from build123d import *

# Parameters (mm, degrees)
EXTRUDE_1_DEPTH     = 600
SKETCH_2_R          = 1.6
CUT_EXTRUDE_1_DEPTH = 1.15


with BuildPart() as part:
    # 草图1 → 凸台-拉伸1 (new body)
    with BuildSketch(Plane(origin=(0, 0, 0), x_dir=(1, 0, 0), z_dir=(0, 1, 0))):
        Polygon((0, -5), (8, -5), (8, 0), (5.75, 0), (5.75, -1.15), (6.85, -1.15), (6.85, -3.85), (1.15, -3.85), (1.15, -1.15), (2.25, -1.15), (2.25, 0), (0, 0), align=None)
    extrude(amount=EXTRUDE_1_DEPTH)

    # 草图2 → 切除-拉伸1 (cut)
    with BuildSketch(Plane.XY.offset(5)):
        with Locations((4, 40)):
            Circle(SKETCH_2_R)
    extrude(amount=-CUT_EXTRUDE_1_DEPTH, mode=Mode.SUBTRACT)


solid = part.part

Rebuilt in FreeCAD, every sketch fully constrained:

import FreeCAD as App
import Part
import Sketcher
Q = App.Units.Quantity

doc = App.newDocument("Part")
body = doc.addObject("PartDesign::Body", "Body")

sketch1 = body.newObject("Sketcher::SketchObject", "Sketch")
sketch1.AttachmentSupport = (doc.getObject("XZ_Plane"), [""])
sketch1.MapMode = "FlatFace"
sketch1.addGeometry(Part.LineSegment(App.Vector(0, 5, 0), App.Vector(8, 5, 0)), False)
sketch1.addGeometry(Part.LineSegment(App.Vector(8, 5, 0), App.Vector(8, 0, 0)), False)
sketch1.addGeometry(Part.LineSegment(App.Vector(8, 0, 0), App.Vector(5.8, 0, 0)), False)
sketch1.addGeometry(Part.LineSegment(App.Vector(5.8, 0, 0), App.Vector(5.8, 1.1, 0)), False)
sketch1.addGeometry(Part.LineSegment(App.Vector(5.8, 1.1, 0), App.Vector(6.8, 1.1, 0)), False)
sketch1.addGeometry(Part.LineSegment(App.Vector(6.8, 1.1, 0), App.Vector(6.8, 3.9, 0)), False)
sketch1.addGeometry(Part.LineSegment(App.Vector(6.8, 3.9, 0), App.Vector(1.1, 3.9, 0)), False)
sketch1.addGeometry(Part.LineSegment(App.Vector(1.1, 3.9, 0), App.Vector(1.1, 1.1, 0)), False)
sketch1.addGeometry(Part.LineSegment(App.Vector(1.1, 1.1, 0), App.Vector(2.2, 1.1, 0)), False)
sketch1.addGeometry(Part.LineSegment(App.Vector(2.2, 1.1, 0), App.Vector(2.2, 0, 0)), False)
sketch1.addGeometry(Part.LineSegment(App.Vector(2.2, 0, 0), App.Vector(0, 0, 0)), False)
sketch1.addGeometry(Part.LineSegment(App.Vector(0, 0, 0), App.Vector(0, 5, 0)), False)
sketch1.addConstraint(Sketcher.Constraint("Coincident", 0, 2, 1, 1))
sketch1.addConstraint(Sketcher.Constraint("Coincident", 1, 2, 2, 1))
sketch1.addConstraint(Sketcher.Constraint("Coincident", 2, 2, 3, 1))
sketch1.addConstraint(Sketcher.Constraint("Coincident", 3, 2, 4, 1))
sketch1.addConstraint(Sketcher.Constraint("Coincident", 4, 2, 5, 1))
sketch1.addConstraint(Sketcher.Constraint("Coincident", 5, 2, 6, 1))
sketch1.addConstraint(Sketcher.Constraint("Coincident", 6, 2, 7, 1))
sketch1.addConstraint(Sketcher.Constraint("Coincident", 7, 2, 8, 1))
sketch1.addConstraint(Sketcher.Constraint("Coincident", 8, 2, 9, 1))
sketch1.addConstraint(Sketcher.Constraint("Coincident", 9, 2, 10, 1))
sketch1.addConstraint(Sketcher.Constraint("Coincident", 10, 2, 11, 1))
sketch1.addConstraint(Sketcher.Constraint("Coincident", 11, 2, 0, 1))
sketch1.addConstraint(Sketcher.Constraint("Horizontal", 0))
sketch1.addConstraint(Sketcher.Constraint("Vertical", 1))
sketch1.addConstraint(Sketcher.Constraint("Horizontal", 2))
sketch1.addConstraint(Sketcher.Constraint("Vertical", 3))
sketch1.addConstraint(Sketcher.Constraint("Horizontal", 4))
sketch1.addConstraint(Sketcher.Constraint("Vertical", 5))
sketch1.addConstraint(Sketcher.Constraint("Horizontal", 6))
sketch1.addConstraint(Sketcher.Constraint("Vertical", 7))
sketch1.addConstraint(Sketcher.Constraint("Horizontal", 8))
sketch1.addConstraint(Sketcher.Constraint("Vertical", 9))
sketch1.addConstraint(Sketcher.Constraint("Horizontal", 10))
sketch1.addConstraint(Sketcher.Constraint("Vertical", 11))
sketch1.addConstraint(Sketcher.Constraint("Coincident", 10, 2, -1, 1))
sketch1.addConstraint(Sketcher.Constraint("PointOnObject", 1, 2, -1))
sketch1.addConstraint(Sketcher.Constraint("Horizontal", 4, 2, 7, 2))
sketch1.addConstraint(Sketcher.Constraint("Equal", 4, 8))
sketch1.addConstraint(Sketcher.Constraint("Equal", 2, 10))
sketch1.addConstraint(Sketcher.Constraint("DistanceX", 0, 1, 0, 2, Q("8 mm")))
sketch1.addConstraint(Sketcher.Constraint("DistanceY", 1, 2, 1, 1, Q("5 mm")))
sketch1.addConstraint(Sketcher.Constraint("DistanceX", 4, 1, 4, 2, Q("1.1 mm")))
sketch1.addConstraint(Sketcher.Constraint("DistanceX", 6, 2, 6, 1, Q("5.7 mm")))
sketch1.addConstraint(Sketcher.Constraint("DistanceY", 5, 1, 5, 2, Q("2.7 mm")))
sketch1.addConstraint(Sketcher.Constraint("DistanceY", 3, 1, 3, 2, Q("1.15 mm")))
pad1 = body.newObject("PartDesign::Pad", "Pad")
pad1.Profile = sketch1
pad1.Length = 600
pad1.Reversed = True

sketch2 = body.newObject("Sketcher::SketchObject", "Sketch001")
sketch2.AttachmentSupport = (doc.getObject("XY_Plane"), [""])
sketch2.MapMode = "FlatFace"
sketch2.AttachmentOffset = App.Placement(App.Vector(0, 0, 5), App.Rotation())
sketch2.addGeometry(Part.Circle(App.Vector(4, 40, 0), App.Vector(0, 0, 1), 1.6), False)
sketch2.addConstraint(Sketcher.Constraint("Diameter", 0, Q("3.2 mm")))
sketch2.addConstraint(Sketcher.Constraint("DistanceX", -1, 1, 0, 3, Q("4 mm")))
sketch2.addConstraint(Sketcher.Constraint("DistanceY", -1, 1, 0, 3, Q("40 mm")))
pocket1 = body.newObject("PartDesign::Pocket", "Pocket")
pocket1.Profile = sketch2
pocket1.Length = 1.15

doc.recompute()
